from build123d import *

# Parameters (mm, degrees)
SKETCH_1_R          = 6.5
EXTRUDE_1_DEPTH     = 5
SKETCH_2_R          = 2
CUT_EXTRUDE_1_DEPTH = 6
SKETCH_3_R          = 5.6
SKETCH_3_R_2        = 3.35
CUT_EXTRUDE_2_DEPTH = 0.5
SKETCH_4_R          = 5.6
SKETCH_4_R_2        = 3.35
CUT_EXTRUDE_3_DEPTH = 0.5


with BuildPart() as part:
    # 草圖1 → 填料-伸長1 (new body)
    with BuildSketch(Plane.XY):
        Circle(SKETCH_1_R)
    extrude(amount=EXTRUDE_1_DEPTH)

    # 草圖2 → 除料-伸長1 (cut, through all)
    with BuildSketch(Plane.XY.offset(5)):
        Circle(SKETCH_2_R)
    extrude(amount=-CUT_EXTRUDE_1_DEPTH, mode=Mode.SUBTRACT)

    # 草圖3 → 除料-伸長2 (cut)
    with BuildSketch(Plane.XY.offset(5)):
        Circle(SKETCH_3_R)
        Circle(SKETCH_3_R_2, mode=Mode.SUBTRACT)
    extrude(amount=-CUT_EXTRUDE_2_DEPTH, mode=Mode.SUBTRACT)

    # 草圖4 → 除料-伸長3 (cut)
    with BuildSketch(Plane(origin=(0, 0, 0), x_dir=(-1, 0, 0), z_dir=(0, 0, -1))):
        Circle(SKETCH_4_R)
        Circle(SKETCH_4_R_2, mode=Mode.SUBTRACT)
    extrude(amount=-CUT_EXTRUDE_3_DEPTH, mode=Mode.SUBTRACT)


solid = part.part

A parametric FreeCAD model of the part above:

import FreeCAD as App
import Part
import Sketcher

V = App.Vector

doc = App.newDocument("Part")
body = doc.addObject("PartDesign::Body", "Body")

# Sketch on XY plane
sketch1 = body.newObject("Sketcher::SketchObject", "Sketch")
sketch1.AttachmentSupport = (doc.getObject("XY_Plane"), [""])
sketch1.MapMode = "FlatFace"
sketch1.addGeometry(Part.Circle(V(0, 0, 0), V(0, 0, 1), 6), False)
sketch1.addConstraint(Sketcher.Constraint("Coincident", 0, 3, -1, 1))
sketch1.addConstraint(Sketcher.Constraint("Diameter", 0, 13.0))
pad1 = body.newObject("PartDesign::Pad", "Pad")
pad1.Profile = sketch1
pad1.Length = 5

# Sketch on XY plane
sketch2 = body.newObject("Sketcher::SketchObject", "Sketch001")
sketch2.AttachmentSupport = (doc.getObject("XY_Plane"), [""])
sketch2.MapMode = "FlatFace"
sketch2.AttachmentOffset = App.Placement(V(0, 0, 5), App.Rotation())
sketch2.addGeometry(Part.Circle(V(0, 0, 0), V(0, 0, 1), 2), False)
sketch2.addConstraint(Sketcher.Constraint("Coincident", 0, 3, -1, 1))
sketch2.addConstraint(Sketcher.Constraint("Diameter", 0, 4.0))
pocket1 = body.newObject("PartDesign::Pocket", "Pocket")
pocket1.Profile = sketch2
pocket1.Type = "ThroughAll"

# Sketch on XY plane
sketch3 = body.newObject("Sketcher::SketchObject", "Sketch002")
sketch3.AttachmentSupport = (doc.getObject("XY_Plane"), [""])
sketch3.MapMode = "FlatFace"
sketch3.AttachmentOffset = App.Placement(V(0, 0, 5), App.Rotation())
sketch3.addGeometry(Part.Circle(V(0, 0, 0), V(0, 0, 1), 5.6), False)
sketch3.addGeometry(Part.Circle(V(0, 0, 0), V(0, 0, 1), 3.4), False)
sketch3.addConstraint(Sketcher.Constraint("Coincident", 0, 3, -1, 1))
sketch3.addConstraint(Sketcher.Constraint("Coincident", 1, 3, -1, 1))
sketch3.addConstraint(Sketcher.Constraint("Diameter", 0, 11.2))
sketch3.addConstraint(Sketcher.Constraint("Diameter", 1, 6.7))
pocket2 = body.newObject("PartDesign::Pocket", "Pocket001")
pocket2.Profile = sketch3
pocket2.Length = 0.5

# Sketch on XY plane
sketch4 = body.newObject("Sketcher::SketchObject", "Sketch003")
sketch4.AttachmentSupport = (doc.getObject("XY_Plane"), [""])
sketch4.MapMode = "FlatFace"
sketch4.addGeometry(Part.Circle(V(0, 0, 0), V(0, 0, 1), 5.6), False)
sketch4.addGeometry(Part.Circle(V(0, 0, 0), V(0, 0, 1), 3.4), False)
sketch4.addConstraint(Sketcher.Constraint("Coincident", 0, 3, -1, 1))
sketch4.addConstraint(Sketcher.Constraint("Coincident", 1, 3, -1, 1))
sketch4.addConstraint(Sketcher.Constraint("Diameter", 0, 11.2))
sketch4.addConstraint(Sketcher.Constraint("Diameter", 1, 6.7))
pocket3 = body.newObject("PartDesign::Pocket", "Pocket002")
pocket3.Profile = sketch4
pocket3.Length = 0.5
pocket3.Reversed = True

doc.recompute()
